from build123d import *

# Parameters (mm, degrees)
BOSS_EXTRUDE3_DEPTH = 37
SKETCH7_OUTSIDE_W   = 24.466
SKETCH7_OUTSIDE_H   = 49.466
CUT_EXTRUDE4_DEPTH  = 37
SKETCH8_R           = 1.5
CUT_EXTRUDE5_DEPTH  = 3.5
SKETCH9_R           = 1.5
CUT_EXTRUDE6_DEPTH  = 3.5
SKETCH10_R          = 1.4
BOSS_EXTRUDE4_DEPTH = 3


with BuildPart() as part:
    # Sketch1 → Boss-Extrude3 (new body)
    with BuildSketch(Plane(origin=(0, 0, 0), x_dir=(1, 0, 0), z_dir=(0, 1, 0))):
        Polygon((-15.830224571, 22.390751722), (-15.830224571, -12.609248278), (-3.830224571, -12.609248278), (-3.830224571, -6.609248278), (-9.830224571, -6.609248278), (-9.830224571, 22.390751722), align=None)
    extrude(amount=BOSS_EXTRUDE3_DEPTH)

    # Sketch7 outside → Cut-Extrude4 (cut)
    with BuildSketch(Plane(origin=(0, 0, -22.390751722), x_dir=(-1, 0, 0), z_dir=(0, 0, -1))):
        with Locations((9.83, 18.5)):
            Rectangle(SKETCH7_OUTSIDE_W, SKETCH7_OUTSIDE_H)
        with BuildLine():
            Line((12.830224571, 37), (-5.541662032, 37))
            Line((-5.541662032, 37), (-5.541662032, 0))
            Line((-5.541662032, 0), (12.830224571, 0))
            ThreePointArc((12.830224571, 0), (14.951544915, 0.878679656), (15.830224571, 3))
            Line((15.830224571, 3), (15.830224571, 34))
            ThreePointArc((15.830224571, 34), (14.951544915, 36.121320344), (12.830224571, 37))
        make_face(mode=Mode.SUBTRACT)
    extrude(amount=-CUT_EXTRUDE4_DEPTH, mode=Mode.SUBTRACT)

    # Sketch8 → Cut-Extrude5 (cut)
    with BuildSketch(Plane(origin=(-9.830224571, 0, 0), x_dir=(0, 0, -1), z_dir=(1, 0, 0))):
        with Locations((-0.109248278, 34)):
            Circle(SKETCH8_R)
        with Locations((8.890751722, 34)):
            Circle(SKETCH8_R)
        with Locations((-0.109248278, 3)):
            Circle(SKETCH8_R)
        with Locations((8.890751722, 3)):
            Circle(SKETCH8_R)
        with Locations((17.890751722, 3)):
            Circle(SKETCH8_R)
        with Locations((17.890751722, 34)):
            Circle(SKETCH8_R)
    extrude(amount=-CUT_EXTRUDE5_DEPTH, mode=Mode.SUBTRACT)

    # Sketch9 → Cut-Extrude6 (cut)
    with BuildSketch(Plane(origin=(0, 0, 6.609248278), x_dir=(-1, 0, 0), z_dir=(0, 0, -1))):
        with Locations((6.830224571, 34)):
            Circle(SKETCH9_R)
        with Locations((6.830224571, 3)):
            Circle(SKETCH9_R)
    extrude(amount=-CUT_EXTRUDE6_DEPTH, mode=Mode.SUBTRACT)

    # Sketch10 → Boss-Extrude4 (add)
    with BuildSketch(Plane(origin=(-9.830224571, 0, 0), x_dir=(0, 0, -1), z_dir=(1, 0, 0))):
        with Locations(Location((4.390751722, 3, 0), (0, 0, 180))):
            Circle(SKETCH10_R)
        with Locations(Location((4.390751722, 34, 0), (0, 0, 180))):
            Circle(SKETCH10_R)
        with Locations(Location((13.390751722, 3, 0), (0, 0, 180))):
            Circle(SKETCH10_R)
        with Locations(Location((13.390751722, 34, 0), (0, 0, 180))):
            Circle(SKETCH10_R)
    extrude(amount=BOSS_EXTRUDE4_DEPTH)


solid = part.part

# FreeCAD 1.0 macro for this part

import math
import FreeCAD as App
import Part
import Sketcher

doc = App.newDocument("Part")
body = doc.addObject("PartDesign::Body", "Body")

sketch1 = body.newObject("Sketcher::SketchObject", "Sketch")
sketch1.AttachmentSupport = (doc.getObject("XZ_Plane"), [""])
sketch1.MapMode = "FlatFace"
sketch1.addGeometry([
    Part.LineSegment(App.Vector(-16, -22, 0), App.Vector(-16, 13, 0)),
    Part.LineSegment(App.Vector(-16, 13, 0), App.Vector(-4, 13, 0)),
    Part.LineSegment(App.Vector(-4, 13, 0), App.Vector(-4, 7, 0)),
    Part.LineSegment(App.Vector(-4, 7, 0), App.Vector(-10, 7, 0)),
    Part.LineSegment(App.Vector(-10, 7, 0), App.Vector(-10, -22, 0)),
    Part.LineSegment(App.Vector(-10, -22, 0), App.Vector(-16, -22, 0)),
], False)
sketch1.addConstraint([
    Sketcher.Constraint("Coincident", 0, 2, 1, 1),
    Sketcher.Constraint("Coincident", 1, 2, 2, 1),
    Sketcher.Constraint("Coincident", 2, 2, 3, 1),
    Sketcher.Constraint("Coincident", 3, 2, 4, 1),
    Sketcher.Constraint("Coincident", 4, 2, 5, 1),
    Sketcher.Constraint("Coincident", 5, 2, 0, 1),
    Sketcher.Constraint("Vertical", 0),
    Sketcher.Constraint("Horizontal", 1),
    Sketcher.Constraint("Vertical", 2),
    Sketcher.Constraint("Horizontal", 3),
    Sketcher.Constraint("Vertical", 4),
    Sketcher.Constraint("Horizontal", 5),
    Sketcher.Constraint("Equal", 3, 5),
    Sketcher.Constraint("Equal", 5, 2),
    Sketcher.Constraint("DistanceX", 1, 1, 1, 2, 12.0),
    Sketcher.Constraint("DistanceY", 0, 1, 0, 2, 35.0),
    Sketcher.Constraint("DistanceY", -1, 1, 0, 2, 12.609248),
    Sketcher.Constraint("DistanceX", 0, 2, -1, 1, 15.830225),
])
pad1 = body.newObject("PartDesign::Pad", "Pad")
pad1.Profile = sketch1
pad1.Length = 37
pad1.Reversed = True

sketch2 = body.newObject("Sketcher::SketchObject", "Sketch001")
sketch2.AttachmentSupport = (doc.getObject("XY_Plane"), [""])
sketch2.MapMode = "FlatFace"
sketch2.AttachmentOffset = App.Placement(App.Vector(0, 0, -22.390752), App.Rotation())
sketch2.addGeometry([
    Part.LineSegment(App.Vector(2.4, 0, 0), App.Vector(2.4, -6.2, 0)),
    Part.LineSegment(App.Vector(2.4, -6.2, 0), App.Vector(-22.1, -6.2, 0)),
    Part.LineSegment(App.Vector(-22.1, -6.2, 0), App.Vector(-22.1, 43.2, 0)),
    Part.LineSegment(App.Vector(-22.1, 43.2, 0), App.Vector(2.4, 43.2, 0)),
    Part.LineSegment(App.Vector(2.4, 43.2, 0), App.Vector(2.4, 37, 0)),
    Part.LineSegment(App.Vector(2.4, 37, 0), App.Vector(-12.8, 37, 0)),
    Part.ArcOfCircle(Part.Circle(App.Vector(-12.8, 34, 0), App.Vector(0, 0, 1), 3), math.radians(90), math.radians(180)),
    Part.LineSegment(App.Vector(-15.8, 34, 0), App.Vector(-15.8, 3, 0)),
    Part.ArcOfCircle(Part.Circle(App.Vector(-12.8, 3, 0), App.Vector(0, 0, 1), 3), math.radians(180), math.radians(270)),
    Part.LineSegment(App.Vector(-12.8, 0, 0), App.Vector(2.4, 0, 0)),
], False)
sketch2.addConstraint([
    Sketcher.Constraint("Coincident", 0, 2, 1, 1),
    Sketcher.Constraint("Coincident", 1, 2, 2, 1),
    Sketcher.Constraint("Coincident", 2, 2, 3, 1),
    Sketcher.Constraint("Coincident", 3, 2, 4, 1),
    Sketcher.Constraint("Coincident", 4, 2, 5, 1),
    Sketcher.Constraint("Tangent", 5, 2, 6, 1),
    Sketcher.Constraint("Tangent", 6, 2, 7, 1),
    Sketcher.Constraint("Tangent", 7, 2, 8, 1),
    Sketcher.Constraint("Tangent", 8, 2, 9, 1),
    Sketcher.Constraint("Coincident", 9, 2, 0, 1),
    Sketcher.Constraint("Vertical", 0),
    Sketcher.Constraint("Horizontal", 1),
    Sketcher.Constraint("Vertical", 2),
    Sketcher.Constraint("Horizontal", 3),
    Sketcher.Constraint("Vertical", 4),
    Sketcher.Constraint("Horizontal", 5),
    Sketcher.Constraint("Vertical", 7),
    Sketcher.Constraint("Horizontal", 9),
    Sketcher.Constraint("Equal", 6, 8),
    Sketcher.Constraint("PointOnObject", 8, 2, -1),
    Sketcher.Constraint("Vertical", 0, 2, 3, 2),
    Sketcher.Constraint("Equal", 0, 4),
    Sketcher.Constraint("Radius", 6, 3.0),
    Sketcher.Constraint("DistanceY", 7, 2, 7, 1, 31.0),
    Sketcher.Constraint("DistanceX", 1, 2, 1, 1, 24.466),
    Sketcher.Constraint("DistanceY", 0, 2, 0, 1, 6.233),
    Sketcher.Constraint("DistanceX", -1, 1, 0, 2, 2.403),
    Sketcher.Constraint("DistanceX", 5, 2, 5, 1, 15.233225),
])
pocket1 = body.newObject("PartDesign::Pocket", "Pocket")
pocket1.Profile = sketch2
pocket1.Length = 37
pocket1.Reversed = True

sketch3 = body.newObject("Sketcher::SketchObject", "Sketch002")
sketch3.AttachmentSupport = (doc.getObject("YZ_Plane"), [""])
sketch3.MapMode = "FlatFace"
sketch3.AttachmentOffset = App.Placement(App.Vector(0, 0, -9.830225), App.Rotation())
sketch3.addGeometry([
    Part.Circle(App.Vector(34, 0.1, 0), App.Vector(0, 0, 1), 1.5),
    Part.Circle(App.Vector(34, -8.9, 0), App.Vector(0, 0, 1), 1.5),
    Part.Circle(App.Vector(3, 0.1, 0), App.Vector(0, 0, 1), 1.5),
    Part.Circle(App.Vector(3, -8.9, 0), App.Vector(0, 0, 1), 1.5),
    Part.Circle(App.Vector(3, -17.9, 0), App.Vector(0, 0, 1), 1.5),
    Part.Circle(App.Vector(34, -17.9, 0), App.Vector(0, 0, 1), 1.5),
], False)
sketch3.addConstraint([
    Sketcher.Constraint("Equal", 0, 1),
    Sketcher.Constraint("Equal", 1, 2),
    Sketcher.Constraint("Equal", 2, 3),
    Sketcher.Constraint("Equal", 3, 4),
    Sketcher.Constraint("Equal", 4, 5),
    Sketcher.Constraint("Horizontal", 0, 3, 2, 3),
    Sketcher.Constraint("Horizontal", 1, 3, 3, 3),
    Sketcher.Constraint("Horizontal", 4, 3, 5, 3),
    Sketcher.Constraint("Vertical", 0, 3, 1, 3),
    Sketcher.Constraint("Vertical", 2, 3, 3, 3),
    Sketcher.Constraint("Vertical", 3, 3, 4, 3),
    Sketcher.Constraint("Vertical", 1, 3, 5, 3),
    Sketcher.Constraint("Diameter", 0, 3.0),
    Sketcher.Constraint("DistanceX", -1, 1, 0, 3, 34.0),
    Sketcher.Constraint("DistanceX", -1, 1, 2, 3, 3.0),
    Sketcher.Constraint("DistanceY", 1, 3, 0, 3, 9.0),
    Sketcher.Constraint("DistanceY", 4, 3, 3, 3, 9.0),
    Sketcher.Constraint("DistanceY", -1, 1, 0, 3, 0.109248),
])
pocket2 = body.newObject("PartDesign::Pocket", "Pocket001")
pocket2.Profile = sketch3
pocket2.Length = 3.5

sketch4 = body.newObject("Sketcher::SketchObject", "Sketch003")
sketch4.AttachmentSupport = (doc.getObject("XY_Plane"), [""])
sketch4.MapMode = "FlatFace"
sketch4.AttachmentOffset = App.Placement(App.Vector(0, 0, 6.609248), App.Rotation())
sketch4.addGeometry([
    Part.Circle(App.Vector(-6.8, 34, 0), App.Vector(0, 0, 1), 1.5),
    Part.Circle(App.Vector(-6.8, 3, 0), App.Vector(0, 0, 1), 1.5),
], False)
sketch4.addConstraint([
    Sketcher.Constraint("Equal", 0, 1),
    Sketcher.Constraint("Vertical", 0, 3, 1, 3),
    Sketcher.Constraint("Diameter", 0, 3.0),
    Sketcher.Constraint("DistanceY", -1, 1, 0, 3, 34.0),
    Sketcher.Constraint("DistanceY", -1, 1, 1, 3, 3.0),
    Sketcher.Constraint("DistanceX", 0, 3, -1, 1, 6.830225),
])
pocket3 = body.newObject("PartDesign::Pocket", "Pocket002")
pocket3.Profile = sketch4
pocket3.Length = 3.5
pocket3.Reversed = True

sketch5 = body.newObject("Sketcher::SketchObject", "Sketch004")
sketch5.AttachmentSupport = (doc.getObject("YZ_Plane"), [""])
sketch5.MapMode = "FlatFace"
sketch5.AttachmentOffset = App.Placement(App.Vector(0, 0, -9.830225), App.Rotation())
sketch5.addGeometry([
    Part.Circle(App.Vector(3, -4.4, 0), App.Vector(0, 0, 1), 1.4),
    Part.Circle(App.Vector(34, -4.4, 0), App.Vector(0, 0, 1), 1.4),
    Part.Circle(App.Vector(3, -13.4, 0), App.Vector(0, 0, 1), 1.4),
    Part.Circle(App.Vector(34, -13.4, 0), App.Vector(0, 0, 1), 1.4),
], False)
sketch5.addConstraint([
    Sketcher.Constraint("Equal", 0, 1),
    Sketcher.Constraint("Equal", 1, 2),
    Sketcher.Constraint("Equal", 2, 3),
    Sketcher.Constraint("Horizontal", 0, 3, 1, 3),
    Sketcher.Constraint("Horizontal", 2, 3, 3, 3),
    Sketcher.Constraint("Vertical", 0, 3, 2, 3),
    Sketcher.Constraint("Vertical", 1, 3, 3, 3),
    Sketcher.Constraint("Diameter", 0, 2.8),
    Sketcher.Constraint("DistanceX", -1, 1, 0, 3, 3.0),
    Sketcher.Constraint("DistanceX", -1, 1, 1, 3, 34.0),
    Sketcher.Constraint("DistanceY", 2, 3, 0, 3, 9.0),
    Sketcher.Constraint("DistanceY", 0, 3, -1, 1, 4.390752),
])
pad2 = body.newObject("PartDesign::Pad", "Pad001")
pad2.Profile = sketch5
pad2.Length = 3

doc.recompute()
